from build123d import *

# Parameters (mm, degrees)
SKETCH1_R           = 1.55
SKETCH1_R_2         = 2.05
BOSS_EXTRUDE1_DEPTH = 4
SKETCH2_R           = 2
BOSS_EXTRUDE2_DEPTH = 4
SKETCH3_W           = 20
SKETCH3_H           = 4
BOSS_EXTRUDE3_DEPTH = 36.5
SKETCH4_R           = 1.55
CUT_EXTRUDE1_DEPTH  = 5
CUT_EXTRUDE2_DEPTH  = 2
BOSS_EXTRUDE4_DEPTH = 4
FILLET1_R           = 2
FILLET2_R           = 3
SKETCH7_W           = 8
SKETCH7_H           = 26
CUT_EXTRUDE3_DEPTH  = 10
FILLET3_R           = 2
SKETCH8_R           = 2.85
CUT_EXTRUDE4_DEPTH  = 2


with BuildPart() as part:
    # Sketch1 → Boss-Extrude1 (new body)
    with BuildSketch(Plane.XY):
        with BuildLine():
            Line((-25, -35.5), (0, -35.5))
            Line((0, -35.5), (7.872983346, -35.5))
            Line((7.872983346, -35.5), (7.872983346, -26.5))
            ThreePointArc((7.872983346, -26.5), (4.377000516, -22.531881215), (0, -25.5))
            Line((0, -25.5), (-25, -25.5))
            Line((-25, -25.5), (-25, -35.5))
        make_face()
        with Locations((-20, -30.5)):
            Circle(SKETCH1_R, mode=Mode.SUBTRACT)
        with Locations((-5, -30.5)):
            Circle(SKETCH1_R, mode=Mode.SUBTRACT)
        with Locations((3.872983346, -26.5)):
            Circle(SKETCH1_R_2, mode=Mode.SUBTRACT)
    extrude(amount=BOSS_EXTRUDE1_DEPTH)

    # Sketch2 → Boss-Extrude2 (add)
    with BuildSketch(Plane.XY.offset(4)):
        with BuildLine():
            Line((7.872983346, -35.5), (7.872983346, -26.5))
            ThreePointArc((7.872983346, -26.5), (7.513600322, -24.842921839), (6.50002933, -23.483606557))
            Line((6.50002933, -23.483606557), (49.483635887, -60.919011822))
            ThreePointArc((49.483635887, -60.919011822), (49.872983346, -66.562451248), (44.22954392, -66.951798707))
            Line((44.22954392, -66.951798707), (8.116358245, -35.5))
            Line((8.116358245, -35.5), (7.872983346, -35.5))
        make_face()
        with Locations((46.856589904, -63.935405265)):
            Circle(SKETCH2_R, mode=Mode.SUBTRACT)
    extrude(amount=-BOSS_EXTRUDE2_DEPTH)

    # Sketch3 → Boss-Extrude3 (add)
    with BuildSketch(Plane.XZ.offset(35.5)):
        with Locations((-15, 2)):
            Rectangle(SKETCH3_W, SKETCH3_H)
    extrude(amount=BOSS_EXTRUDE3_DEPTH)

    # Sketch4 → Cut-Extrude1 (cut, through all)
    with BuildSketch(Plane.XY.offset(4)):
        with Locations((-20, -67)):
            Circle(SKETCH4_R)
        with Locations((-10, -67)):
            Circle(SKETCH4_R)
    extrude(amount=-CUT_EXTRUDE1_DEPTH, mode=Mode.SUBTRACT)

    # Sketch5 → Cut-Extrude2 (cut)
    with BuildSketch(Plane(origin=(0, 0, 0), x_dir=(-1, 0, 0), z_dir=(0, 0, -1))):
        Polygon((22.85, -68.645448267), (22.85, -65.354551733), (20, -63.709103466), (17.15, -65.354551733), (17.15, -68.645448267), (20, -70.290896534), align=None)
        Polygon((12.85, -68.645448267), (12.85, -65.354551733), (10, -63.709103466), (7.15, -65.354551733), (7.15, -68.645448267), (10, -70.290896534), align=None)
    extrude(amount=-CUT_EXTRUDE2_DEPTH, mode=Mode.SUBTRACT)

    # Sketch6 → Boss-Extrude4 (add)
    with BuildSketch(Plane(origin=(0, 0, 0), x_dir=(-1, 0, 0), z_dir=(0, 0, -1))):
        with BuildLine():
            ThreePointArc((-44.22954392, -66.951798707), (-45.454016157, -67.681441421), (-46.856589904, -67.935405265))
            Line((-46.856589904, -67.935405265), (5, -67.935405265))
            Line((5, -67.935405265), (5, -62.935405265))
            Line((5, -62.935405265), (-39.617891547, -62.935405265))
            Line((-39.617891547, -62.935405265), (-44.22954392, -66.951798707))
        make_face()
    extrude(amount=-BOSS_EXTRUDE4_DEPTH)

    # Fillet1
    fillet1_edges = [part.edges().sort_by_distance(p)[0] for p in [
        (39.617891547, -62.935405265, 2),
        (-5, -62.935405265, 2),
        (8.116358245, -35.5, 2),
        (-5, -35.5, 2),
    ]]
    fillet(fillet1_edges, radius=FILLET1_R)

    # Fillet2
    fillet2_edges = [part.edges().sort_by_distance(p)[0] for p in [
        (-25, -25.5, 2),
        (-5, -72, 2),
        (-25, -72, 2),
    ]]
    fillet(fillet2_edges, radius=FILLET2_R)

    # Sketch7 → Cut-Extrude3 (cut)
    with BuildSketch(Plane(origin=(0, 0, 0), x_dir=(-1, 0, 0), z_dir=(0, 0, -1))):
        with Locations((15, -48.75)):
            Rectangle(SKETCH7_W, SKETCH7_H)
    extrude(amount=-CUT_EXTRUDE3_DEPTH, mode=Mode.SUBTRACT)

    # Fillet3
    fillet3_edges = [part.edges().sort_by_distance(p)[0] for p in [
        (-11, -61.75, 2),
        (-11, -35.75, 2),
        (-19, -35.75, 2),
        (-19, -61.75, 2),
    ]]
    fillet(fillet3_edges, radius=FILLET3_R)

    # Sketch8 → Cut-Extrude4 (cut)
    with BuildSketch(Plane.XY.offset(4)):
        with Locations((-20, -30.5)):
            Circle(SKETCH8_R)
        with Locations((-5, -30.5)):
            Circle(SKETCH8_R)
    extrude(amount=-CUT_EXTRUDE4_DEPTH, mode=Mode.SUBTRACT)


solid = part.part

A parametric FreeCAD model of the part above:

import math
import FreeCAD as App
import Part
import Sketcher
Q = App.Units.Quantity


def edges_at(feature, points):
    """Names of the edges that pass closest to the given points."""
    edges = feature.Shape.Edges
    near = lambda p: min(range(len(edges)), key=lambda i: edges[i].distToShape(Part.Vertex(*p))[0])
    return sorted({f"Edge{near(p) + 1}" for p in points})


def add_polygon(sketch, points):
    """Adds a closed chain of lines whose ends are joined by coincident constraints."""
    first, n = sketch.GeometryCount, len(points)
    for a, b in zip(points, points[1:] + points[:1]):
        sketch.addGeometry(Part.LineSegment(App.Vector(*a, 0), App.Vector(*b, 0)), False)
    for i in range(n):
        sketch.addConstraint(Sketcher.Constraint("Coincident", first + i, 2, first + (i + 1) % n, 1))

doc = App.newDocument("Part")
params = doc.addObject("Spreadsheet::Sheet", "Params")
for row, (alias, value) in enumerate([
    ("sketch1_radius", "4 mm"),
    ("sketch1_diameter", "3.1 mm"),
    ("sketch1_diameter2", "4.1 mm"),
    ("sketch1_width", "25 mm"),
    ("sketch1_height", "9 mm"),
    ("pad1_length", "4 mm"),
    ("sketch2_diameter", "4 mm"),
    ("sketch2_radius", "4 mm"),
    ("sketch2_height", "9 mm"),
    ("sketch2_length", "57 mm"),
    ("pad2_length", "4 mm"),
    ("sketch3_width", "20 mm"),
    ("sketch3_height", "4 mm"),
    ("pad3_length", "36.5 mm"),
    ("sketch4_diameter", "3.1 mm"),
    ("pocket2_length", "2 mm"),
    ("sketch6_radius", "4 mm"),
    ("sketch6_height", "5 mm"),
    ("pad4_length", "4 mm"),
    ("fillet_radius", "2 mm"),
    ("fillet2_radius", "3 mm"),
    ("sketch7_width", "8 mm"),
    ("sketch7_height", "26 mm"),
    ("pocket3_length", "10 mm"),
    ("fillet3_radius", "2 mm"),
    ("sketch8_diameter", "5.7 mm"),
    ("pocket4_length", "2 mm"),
], start=1):
    params.set(f"A{row}", alias)
    params.set(f"B{row}", "=" + value)
    params.setAlias(f"B{row}", alias)

body = doc.addObject("PartDesign::Body", "Body")

# Sketch on XY plane
sketch1 = body.newObject("Sketcher::SketchObject", "Sketch")
sketch1.AttachmentSupport = (doc.getObject("XY_Plane"), [""])
sketch1.MapMode = "FlatFace"
sketch1.addGeometry(Part.LineSegment(App.Vector(-25, -35.5, 0), App.Vector(7.872983, -35.5, 0)), False)
sketch1.addGeometry(Part.LineSegment(App.Vector(7.872983, -35.5, 0), App.Vector(7.872983, -26.5, 0)), False)
sketch1.addGeometry(Part.ArcOfCircle(Part.Circle(App.Vector(3.872983, -26.5, 0), App.Vector(0, 0, 1), 4), math.radians(0), math.radians(165.522488)), False)
sketch1.addGeometry(Part.LineSegment(App.Vector(0, -25.5, 0), App.Vector(-25, -25.5, 0)), False)
sketch1.addGeometry(Part.LineSegment(App.Vector(-25, -25.5, 0), App.Vector(-25, -35.5, 0)), False)
sketch1.addGeometry(Part.Circle(App.Vector(-20, -30.5, 0), App.Vector(0, 0, 1), 1.55), False)
sketch1.addGeometry(Part.Circle(App.Vector(-5, -30.5, 0), App.Vector(0, 0, 1), 1.55), False)
sketch1.addGeometry(Part.Circle(App.Vector(3.872983, -26.5, 0), App.Vector(0, 0, 1), 2.05), False)
sketch1.addConstraint(Sketcher.Constraint("Coincident", 0, 2, 1, 1))
sketch1.addConstraint(Sketcher.Constraint("Tangent", 1, 2, 2, 1))
sketch1.addConstraint(Sketcher.Constraint("Coincident", 2, 2, 3, 1))
sketch1.addConstraint(Sketcher.Constraint("Coincident", 3, 2, 4, 1))
sketch1.addConstraint(Sketcher.Constraint("Coincident", 4, 2, 0, 1))
sketch1.addConstraint(Sketcher.Constraint("Horizontal", 0))
sketch1.addConstraint(Sketcher.Constraint("Vertical", 1))
sketch1.addConstraint(Sketcher.Constraint("Horizontal", 3))
sketch1.addConstraint(Sketcher.Constraint("Vertical", 4))
sketch1.addConstraint(Sketcher.Constraint("Coincident", 7, 3, 2, 3))
sketch1.addConstraint(Sketcher.Constraint("Equal", 5, 6))
sketch1.addConstraint(Sketcher.Constraint("PointOnObject", 2, 2, -2))
sketch1.addConstraint(Sketcher.Constraint("Horizontal", 5, 3, 6, 3))
sketch1.addConstraint(Sketcher.Constraint("Radius", 2, Q("4 mm")))
sketch1.addConstraint(Sketcher.Constraint("Diameter", 5, Q("3.1 mm")))
sketch1.addConstraint(Sketcher.Constraint("Diameter", 7, Q("4.1 mm")))
sketch1.addConstraint(Sketcher.Constraint("DistanceX", 3, 2, 3, 1, Q("25 mm")))
sketch1.addConstraint(Sketcher.Constraint("DistanceY", 1, 1, 1, 2, Q("9 mm")))
sketch1.addConstraint(Sketcher.Constraint("DistanceY", 4, 2, 4, 1, Q("10 mm")))
sketch1.addConstraint(Sketcher.Constraint("DistanceX", 5, 3, -1, 1, Q("20 mm")))
sketch1.addConstraint(Sketcher.Constraint("DistanceX", 6, 3, -1, 1, Q("5 mm")))
sketch1.addConstraint(Sketcher.Constraint("DistanceY", 5, 3, 2, 3, Q("4 mm")))
sketch1.addConstraint(Sketcher.Constraint("DistanceY", 2, 3, -1, 1, Q("26.5 mm")))
sketch1.setExpression("Constraints[13]", "Params.sketch1_radius")
sketch1.setExpression("Constraints[14]", "Params.sketch1_diameter")
sketch1.setExpression("Constraints[15]", "Params.sketch1_diameter2")
sketch1.setExpression("Constraints[16]", "Params.sketch1_width")
sketch1.setExpression("Constraints[17]", "Params.sketch1_height")
pad1 = body.newObject("PartDesign::Pad", "Pad")
pad1.Profile = sketch1
pad1.setExpression("Length", "Params.pad1_length")

# Sketch on XY plane
sketch2 = body.newObject("Sketcher::SketchObject", "Sketch001")
sketch2.AttachmentSupport = (doc.getObject("XY_Plane"), [""])
sketch2.MapMode = "FlatFace"
sketch2.AttachmentOffset = App.Placement(App.Vector(0, 0, 4), App.Rotation())
sketch2.addGeometry(Part.LineSegment(App.Vector(7.872983, -26.5, 0), App.Vector(7.872983, -35.5, 0)), False)
sketch2.addGeometry(Part.LineSegment(App.Vector(7.872983, -35.5, 0), App.Vector(8.116358, -35.5, 0)), False)
sketch2.addGeometry(Part.LineSegment(App.Vector(8.116358, -35.5, 0), App.Vector(44.229544, -66.951799, 0)), False)
sketch2.addGeometry(Part.ArcOfCircle(Part.Circle(App.Vector(46.85659, -63.935405, 0), App.Vector(0, 0, 1), 4), math.radians(-131.053351), math.radians(48.946649)), False)
sketch2.addGeometry(Part.LineSegment(App.Vector(49.483636, -60.919012, 0), App.Vector(6.500029, -23.483607, 0)), False)
sketch2.addGeometry(Part.ArcOfCircle(Part.Circle(App.Vector(3.872983, -26.5, 0), App.Vector(0, 0, 1), 4), math.radians(0), math.radians(48.946649)), False)
sketch2.addGeometry(Part.Circle(App.Vector(46.85659, -63.935405, 0), App.Vector(0, 0, 1), 2), False)
sketch2.addConstraint(Sketcher.Constraint("Coincident", 0, 2, 1, 1))
sketch2.addConstraint(Sketcher.Constraint("Coincident", 1, 2, 2, 1))
sketch2.addConstraint(Sketcher.Constraint("Tangent", 2, 2, 3, 1))
sketch2.addConstraint(Sketcher.Constraint("Tangent", 3, 2, 4, 1))
sketch2.addConstraint(Sketcher.Constraint("Tangent", 4, 2, 5, 2))
sketch2.addConstraint(Sketcher.Constraint("Tangent", 5, 1, 0, 1))
sketch2.addConstraint(Sketcher.Constraint("Vertical", 0))
sketch2.addConstraint(Sketcher.Constraint("Horizontal", 1))
sketch2.addConstraint(Sketcher.Constraint("Coincident", 6, 3, 3, 3))
sketch2.addConstraint(Sketcher.Constraint("Equal", 3, 5))
sketch2.addConstraint(Sketcher.Constraint("Parallel", 2, 4))
sketch2.addConstraint(Sketcher.Constraint("Diameter", 6, Q("4 mm")))
sketch2.addConstraint(Sketcher.Constraint("Radius", 3, Q("4 mm")))
sketch2.addConstraint(Sketcher.Constraint("DistanceY", 0, 2, 0, 1, Q("9 mm")))
sketch2.addConstraint(Sketcher.Constraint("Distance", 4, Q("57 mm")))
sketch2.addConstraint(Sketcher.Constraint("DistanceY", 5, 3, -1, 1, Q("26.5 mm")))
sketch2.addConstraint(Sketcher.Constraint("DistanceY", 2, 2, -1, 1, Q("66.951799 mm")))
sketch2.addConstraint(Sketcher.Constraint("DistanceX", -1, 1, 3, 3, Q("46.85659 mm")))
sketch2.setExpression("Constraints[11]", "Params.sketch2_diameter")
sketch2.setExpression("Constraints[12]", "Params.sketch2_radius")
sketch2.setExpression("Constraints[13]", "Params.sketch2_height")
sketch2.setExpression("Constraints[14]", "Params.sketch2_length")
pad2 = body.newObject("PartDesign::Pad", "Pad001")
pad2.Profile = sketch2
pad2.setExpression("Length", "Params.pad2_length")
pad2.Reversed = True

# Sketch on XZ plane
sketch3 = body.newObject("Sketcher::SketchObject", "Sketch002")
sketch3.AttachmentSupport = (doc.getObject("XZ_Plane"), [""])
sketch3.MapMode = "FlatFace"
sketch3.AttachmentOffset = App.Placement(App.Vector(0, 0, 35.5), App.Rotation())
add_polygon(sketch3, [(-25, 4), (-25, 0), (-5, 0), (-5, 4)])  # lines 0-3
sketch3.addConstraint(Sketcher.Constraint("Vertical", 0))
sketch3.addConstraint(Sketcher.Constraint("Horizontal", 1))
sketch3.addConstraint(Sketcher.Constraint("Vertical", 2))
sketch3.addConstraint(Sketcher.Constraint("Horizontal", 3))
sketch3.addConstraint(Sketcher.Constraint("PointOnObject", 0, 2, -1))
sketch3.addConstraint(Sketcher.Constraint("DistanceX", 1, 1, 1, 2, Q("20 mm")))
sketch3.addConstraint(Sketcher.Constraint("DistanceY", 0, 2, 0, 1, Q("4 mm")))
sketch3.addConstraint(Sketcher.Constraint("DistanceX", 0, 2, -1, 1, Q("25 mm")))
sketch3.setExpression("Constraints[9]", "Params.sketch3_width")
sketch3.setExpression("Constraints[10]", "Params.sketch3_height")
pad3 = body.newObject("PartDesign::Pad", "Pad002")
pad3.Profile = sketch3
pad3.setExpression("Length", "Params.pad3_length")

# Sketch on XY plane
sketch4 = body.newObject("Sketcher::SketchObject", "Sketch003")
sketch4.AttachmentSupport = (doc.getObject("XY_Plane"), [""])
sketch4.MapMode = "FlatFace"
sketch4.AttachmentOffset = App.Placement(App.Vector(0, 0, 4), App.Rotation())
sketch4.addGeometry(Part.Circle(App.Vector(-20, -67, 0), App.Vector(0, 0, 1), 1.55), False)
sketch4.addGeometry(Part.Circle(App.Vector(-10, -67, 0), App.Vector(0, 0, 1), 1.55), False)
sketch4.addConstraint(Sketcher.Constraint("Equal", 0, 1))
sketch4.addConstraint(Sketcher.Constraint("Horizontal", 0, 3, 1, 3))
sketch4.addConstraint(Sketcher.Constraint("Diameter", 0, Q("3.1 mm")))
sketch4.addConstraint(Sketcher.Constraint("DistanceX", 0, 3, -1, 1, Q("20 mm")))
sketch4.addConstraint(Sketcher.Constraint("DistanceY", 0, 3, -1, 1, Q("67 mm")))
sketch4.addConstraint(Sketcher.Constraint("DistanceX", 1, 3, -1, 1, Q("10 mm")))
sketch4.setExpression("Constraints[2]", "Params.sketch4_diameter")
pocket1 = body.newObject("PartDesign::Pocket", "Pocket")
pocket1.Profile = sketch4
pocket1.Type = "ThroughAll"

# Sketch on XY plane
sketch5 = body.newObject("Sketcher::SketchObject", "Sketch004")
sketch5.AttachmentSupport = (doc.getObject("XY_Plane"), [""])
sketch5.MapMode = "FlatFace"
add_polygon(sketch5, [(-22.85, -68.645448), (-22.85, -65.354552), (-20, -63.709103), (-17.15, -65.354552), (-17.15, -68.645448), (-20, -70.290897)])  # lines 0-5
add_polygon(sketch5, [(-12.85, -68.645448), (-12.85, -65.354552), (-10, -63.709103), (-7.15, -65.354552), (-7.15, -68.645448), (-10, -70.290897)])  # lines 6-11
sketch5.addConstraint(Sketcher.Constraint("Vertical", 0))
sketch5.addConstraint(Sketcher.Constraint("Vertical", 3))
sketch5.addConstraint(Sketcher.Constraint("Vertical", 6))
sketch5.addConstraint(Sketcher.Constraint("Vertical", 9))
sketch5.addConstraint(Sketcher.Constraint("Parallel", 1, 4))
sketch5.addConstraint(Sketcher.Constraint("Parallel", 2, 5))
sketch5.addConstraint(Sketcher.Constraint("Parallel", 4, 7))
sketch5.addConstraint(Sketcher.Constraint("Parallel", 5, 8))
sketch5.addConstraint(Sketcher.Constraint("Parallel", 7, 10))
sketch5.addConstraint(Sketcher.Constraint("Parallel", 8, 11))
sketch5.addConstraint(Sketcher.Constraint("Horizontal", 0, 2, 2, 2))
sketch5.addConstraint(Sketcher.Constraint("Horizontal", 3, 2, 5, 2))
sketch5.addConstraint(Sketcher.Constraint("Horizontal", 2, 2, 6, 2))
sketch5.addConstraint(Sketcher.Constraint("Horizontal", 1, 2, 7, 2))
sketch5.addConstraint(Sketcher.Constraint("Horizontal", 6, 2, 8, 2))
sketch5.addConstraint(Sketcher.Constraint("Horizontal", 5, 2, 9, 2))
sketch5.addConstraint(Sketcher.Constraint("Horizontal", 4, 2, 10, 2))
sketch5.addConstraint(Sketcher.Constraint("Vertical", 1, 2, 4, 2))
sketch5.addConstraint(Sketcher.Constraint("Angle", 1, Q("30 deg")))
sketch5.addConstraint(Sketcher.Constraint("DistanceX", 1, 2, -1, 1, Q("20 mm")))
sketch5.addConstraint(Sketcher.Constraint("DistanceX", 7, 2, -1, 1, Q("10 mm")))
sketch5.addConstraint(Sketcher.Constraint("DistanceX", 0, 2, 2, 2, Q("5.7 mm")))
sketch5.addConstraint(Sketcher.Constraint("DistanceY", 0, 1, 0, 2, Q("3.290897 mm")))
sketch5.addConstraint(Sketcher.Constraint("DistanceY", 0, 2, -1, 1, Q("65.354552 mm")))
pocket2 = body.newObject("PartDesign::Pocket", "Pocket001")
pocket2.Profile = sketch5
pocket2.setExpression("Length", "Params.pocket2_length")
pocket2.Reversed = True

# Sketch on XY plane
sketch6 = body.newObject("Sketcher::SketchObject", "Sketch005")
sketch6.AttachmentSupport = (doc.getObject("XY_Plane"), [""])
sketch6.MapMode = "FlatFace"
sketch6.addGeometry(Part.ArcOfCircle(Part.Circle(App.Vector(46.85659, -63.935405, 0), App.Vector(0, 0, 1), 4), math.radians(-131.053351), math.radians(-90)), False)
sketch6.addGeometry(Part.LineSegment(App.Vector(46.85659, -67.935405, 0), App.Vector(-5, -67.935405, 0)), False)
sketch6.addGeometry(Part.LineSegment(App.Vector(-5, -67.935405, 0), App.Vector(-5, -62.935405, 0)), False)
sketch6.addGeometry(Part.LineSegment(App.Vector(-5, -62.935405, 0), App.Vector(39.617892, -62.935405, 0)), False)
sketch6.addGeometry(Part.LineSegment(App.Vector(39.617892, -62.935405, 0), App.Vector(44.229544, -66.951799, 0)), False)
sketch6.addConstraint(Sketcher.Constraint("Tangent", 0, 2, 1, 1))
sketch6.addConstraint(Sketcher.Constraint("Coincident", 1, 2, 2, 1))
sketch6.addConstraint(Sketcher.Constraint("Coincident", 2, 2, 3, 1))
sketch6.addConstraint(Sketcher.Constraint("Coincident", 3, 2, 4, 1))
sketch6.addConstraint(Sketcher.Constraint("Tangent", 4, 2, 0, 1))
sketch6.addConstraint(Sketcher.Constraint("Horizontal", 1))
sketch6.addConstraint(Sketcher.Constraint("Vertical", 2))
sketch6.addConstraint(Sketcher.Constraint("Horizontal", 3))
sketch6.addConstraint(Sketcher.Constraint("Radius", 0, Q("4 mm")))
sketch6.addConstraint(Sketcher.Constraint("DistanceY", 2, 1, 2, 2, Q("5 mm")))
sketch6.addConstraint(Sketcher.Constraint("DistanceX", 1, 2, -1, 1, Q("5 mm")))
sketch6.addConstraint(Sketcher.Constraint("DistanceX", 1, 2, 1, 1, Q("51.85659 mm")))
sketch6.addConstraint(Sketcher.Constraint("DistanceX", 3, 1, 3, 2, Q("44.617892 mm")))
sketch6.addConstraint(Sketcher.Constraint("DistanceY", 4, 2, -1, 1, Q("66.951799 mm")))
sketch6.setExpression("Constraints[8]", "Params.sketch6_radius")
sketch6.setExpression("Constraints[9]", "Params.sketch6_height")
pad4 = body.newObject("PartDesign::Pad", "Pad003")
pad4.Profile = sketch6
pad4.setExpression("Length", "Params.pad4_length")
doc.recompute()

fillet = body.newObject("PartDesign::Fillet", "Fillet")
fillet.Base = (pad4, edges_at(pad4, [
    (39.618, -62.935, 2),
    (-5, -62.935, 2),
    (8.116, -35.5, 2),
    (-5, -35.5, 2),
]))
fillet.setExpression("Radius", "Params.fillet_radius")
doc.recompute()

fillet2 = body.newObject("PartDesign::Fillet", "Fillet001")
fillet2.Base = (fillet, edges_at(fillet, [(-25, -25.5, 2), (-5, -72, 2), (-25, -72, 2)]))
fillet2.setExpression("Radius", "Params.fillet2_radius")

# Sketch on XY plane
sketch7 = body.newObject("Sketcher::SketchObject", "Sketch006")
sketch7.AttachmentSupport = (doc.getObject("XY_Plane"), [""])
sketch7.MapMode = "FlatFace"
add_polygon(sketch7, [(-11, -35.75), (-11, -61.75), (-19, -61.75), (-19, -35.75)])  # lines 0-3
sketch7.addConstraint(Sketcher.Constraint("Vertical", 0))
sketch7.addConstraint(Sketcher.Constraint("Horizontal", 1))
sketch7.addConstraint(Sketcher.Constraint("Vertical", 2))
sketch7.addConstraint(Sketcher.Constraint("Horizontal", 3))
sketch7.addConstraint(Sketcher.Constraint("DistanceX", 1, 2, 1, 1, Q("8 mm")))
sketch7.addConstraint(Sketcher.Constraint("DistanceY", 0, 2, 0, 1, Q("26 mm")))
sketch7.addConstraint(Sketcher.Constraint("DistanceX", 0, 2, -1, 1, Q("11 mm")))
sketch7.addConstraint(Sketcher.Constraint("DistanceY", 0, 2, -1, 1, Q("61.75 mm")))
sketch7.setExpression("Constraints[8]", "Params.sketch7_width")
sketch7.setExpression("Constraints[9]", "Params.sketch7_height")
pocket3 = body.newObject("PartDesign::Pocket", "Pocket002")
pocket3.Profile = sketch7
pocket3.setExpression("Length", "Params.pocket3_length")
pocket3.Reversed = True
doc.recompute()

fillet3 = body.newObject("PartDesign::Fillet", "Fillet002")
fillet3.Base = (pocket3, edges_at(pocket3, [
    (-11, -61.75, 2),
    (-11, -35.75, 2),
    (-19, -35.75, 2),
    (-19, -61.75, 2),
]))
fillet3.setExpression("Radius", "Params.fillet3_radius")

# Sketch on XY plane
sketch8 = body.newObject("Sketcher::SketchObject", "Sketch007")
sketch8.AttachmentSupport = (doc.getObject("XY_Plane"), [""])
sketch8.MapMode = "FlatFace"
sketch8.AttachmentOffset = App.Placement(App.Vector(0, 0, 4), App.Rotation())
sketch8.addGeometry(Part.Circle(App.Vector(-20, -30.5, 0), App.Vector(0, 0, 1), 2.85), False)
sketch8.addGeometry(Part.Circle(App.Vector(-5, -30.5, 0), App.Vector(0, 0, 1), 2.85), False)
sketch8.addConstraint(Sketcher.Constraint("Equal", 0, 1))
sketch8.addConstraint(Sketcher.Constraint("Horizontal", 0, 3, 1, 3))
sketch8.addConstraint(Sketcher.Constraint("Diameter", 0, Q("5.7 mm")))
sketch8.addConstraint(Sketcher.Constraint("DistanceX", 0, 3, -1, 1, Q("20 mm")))
sketch8.addConstraint(Sketcher.Constraint("DistanceX", 1, 3, -1, 1, Q("5 mm")))
sketch8.addConstraint(Sketcher.Constraint("DistanceY", 0, 3, -1, 1, Q("30.5 mm")))
sketch8.setExpression("Constraints[2]", "Params.sketch8_diameter")
pocket4 = body.newObject("PartDesign::Pocket", "Pocket003")
pocket4.Profile = sketch8
pocket4.setExpression("Length", "Params.pocket4_length")

doc.recompute()
